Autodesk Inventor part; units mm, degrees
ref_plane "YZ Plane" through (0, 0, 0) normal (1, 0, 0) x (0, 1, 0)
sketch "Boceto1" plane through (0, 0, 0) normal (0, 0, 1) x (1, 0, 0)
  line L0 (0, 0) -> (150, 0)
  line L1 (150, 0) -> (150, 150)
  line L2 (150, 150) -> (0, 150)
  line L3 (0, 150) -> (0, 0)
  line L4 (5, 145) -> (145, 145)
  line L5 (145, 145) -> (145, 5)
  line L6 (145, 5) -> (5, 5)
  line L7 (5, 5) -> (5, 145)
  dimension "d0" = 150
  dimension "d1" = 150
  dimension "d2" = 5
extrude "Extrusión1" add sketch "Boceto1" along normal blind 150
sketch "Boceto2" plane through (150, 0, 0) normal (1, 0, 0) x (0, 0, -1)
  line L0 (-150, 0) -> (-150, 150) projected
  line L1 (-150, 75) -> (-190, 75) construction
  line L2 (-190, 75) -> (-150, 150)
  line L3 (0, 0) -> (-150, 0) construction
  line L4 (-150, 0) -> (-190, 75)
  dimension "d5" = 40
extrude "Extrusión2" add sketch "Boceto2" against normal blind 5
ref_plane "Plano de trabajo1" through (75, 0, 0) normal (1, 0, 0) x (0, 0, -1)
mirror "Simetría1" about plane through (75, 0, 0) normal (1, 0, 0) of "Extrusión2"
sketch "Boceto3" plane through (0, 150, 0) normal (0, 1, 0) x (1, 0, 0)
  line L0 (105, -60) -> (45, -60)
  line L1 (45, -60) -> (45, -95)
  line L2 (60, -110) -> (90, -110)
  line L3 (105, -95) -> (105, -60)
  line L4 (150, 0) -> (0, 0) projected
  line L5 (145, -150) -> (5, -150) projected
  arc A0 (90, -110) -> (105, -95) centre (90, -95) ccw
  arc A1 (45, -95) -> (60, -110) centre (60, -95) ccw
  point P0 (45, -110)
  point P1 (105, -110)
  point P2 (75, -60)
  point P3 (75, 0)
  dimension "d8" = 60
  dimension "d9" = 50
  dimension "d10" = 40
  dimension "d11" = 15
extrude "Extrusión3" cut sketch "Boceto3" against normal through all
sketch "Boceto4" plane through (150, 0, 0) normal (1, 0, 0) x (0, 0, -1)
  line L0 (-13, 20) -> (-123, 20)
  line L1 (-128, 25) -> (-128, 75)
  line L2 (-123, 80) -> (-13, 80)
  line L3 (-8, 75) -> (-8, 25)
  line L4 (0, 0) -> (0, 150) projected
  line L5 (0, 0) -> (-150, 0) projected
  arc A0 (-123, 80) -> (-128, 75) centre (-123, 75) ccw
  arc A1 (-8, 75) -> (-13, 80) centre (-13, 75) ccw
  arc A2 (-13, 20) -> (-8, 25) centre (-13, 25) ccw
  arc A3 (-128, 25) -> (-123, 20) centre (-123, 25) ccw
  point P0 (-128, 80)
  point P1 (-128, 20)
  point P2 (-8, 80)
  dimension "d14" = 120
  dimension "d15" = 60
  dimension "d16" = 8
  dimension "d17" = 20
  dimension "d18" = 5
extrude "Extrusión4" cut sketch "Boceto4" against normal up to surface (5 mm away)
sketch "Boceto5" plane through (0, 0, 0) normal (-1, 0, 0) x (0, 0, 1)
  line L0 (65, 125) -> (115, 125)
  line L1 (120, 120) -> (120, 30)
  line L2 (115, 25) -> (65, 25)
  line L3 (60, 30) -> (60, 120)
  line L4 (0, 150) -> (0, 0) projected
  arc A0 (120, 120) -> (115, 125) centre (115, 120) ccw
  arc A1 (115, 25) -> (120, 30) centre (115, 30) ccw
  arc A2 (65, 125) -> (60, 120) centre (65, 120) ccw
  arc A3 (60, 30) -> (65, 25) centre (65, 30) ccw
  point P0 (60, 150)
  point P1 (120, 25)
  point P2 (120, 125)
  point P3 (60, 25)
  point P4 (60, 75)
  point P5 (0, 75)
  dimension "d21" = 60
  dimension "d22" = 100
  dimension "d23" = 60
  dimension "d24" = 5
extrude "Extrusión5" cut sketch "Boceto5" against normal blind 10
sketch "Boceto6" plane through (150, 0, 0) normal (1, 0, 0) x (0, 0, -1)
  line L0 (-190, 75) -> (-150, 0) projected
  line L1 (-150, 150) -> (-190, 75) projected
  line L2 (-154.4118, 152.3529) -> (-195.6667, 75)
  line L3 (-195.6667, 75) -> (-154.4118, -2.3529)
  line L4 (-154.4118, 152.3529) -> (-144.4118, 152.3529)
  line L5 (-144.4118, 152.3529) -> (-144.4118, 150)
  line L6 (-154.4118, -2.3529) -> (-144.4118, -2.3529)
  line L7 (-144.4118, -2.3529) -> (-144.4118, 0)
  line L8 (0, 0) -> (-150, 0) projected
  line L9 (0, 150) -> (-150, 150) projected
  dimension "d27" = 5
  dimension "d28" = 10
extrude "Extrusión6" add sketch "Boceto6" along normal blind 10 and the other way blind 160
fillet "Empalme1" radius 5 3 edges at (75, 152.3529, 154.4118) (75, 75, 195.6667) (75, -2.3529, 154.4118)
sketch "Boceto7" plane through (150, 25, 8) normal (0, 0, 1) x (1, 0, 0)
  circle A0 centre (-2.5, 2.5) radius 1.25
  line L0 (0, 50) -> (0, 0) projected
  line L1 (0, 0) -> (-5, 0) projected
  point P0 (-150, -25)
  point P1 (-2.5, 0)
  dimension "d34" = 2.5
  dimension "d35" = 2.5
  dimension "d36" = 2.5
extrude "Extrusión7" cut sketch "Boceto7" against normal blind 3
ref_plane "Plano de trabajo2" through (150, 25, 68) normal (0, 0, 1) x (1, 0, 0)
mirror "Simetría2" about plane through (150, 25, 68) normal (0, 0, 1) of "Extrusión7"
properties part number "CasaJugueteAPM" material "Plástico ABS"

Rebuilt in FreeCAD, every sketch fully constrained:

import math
import FreeCAD as App
import Part
import Sketcher

V = App.Vector


def edges_at(feature, points):
    """Names of the edges that pass closest to the given points."""
    edges = feature.Shape.Edges
    near = lambda p: min(range(len(edges)), key=lambda i: edges[i].distToShape(Part.Vertex(*p))[0])
    return sorted({f"Edge{near(p) + 1}" for p in points})


def add_polygon(sketch, points):
    """Adds a closed chain of lines whose ends are joined by coincident constraints."""
    first, n = sketch.GeometryCount, len(points)
    for a, b in zip(points, points[1:] + points[:1]):
        sketch.addGeometry(Part.LineSegment(App.Vector(*a, 0), App.Vector(*b, 0)), False)
    for i in range(n):
        sketch.addConstraint(Sketcher.Constraint("Coincident", first + i, 2, first + (i + 1) % n, 1))

doc = App.newDocument("Part")
body = doc.addObject("PartDesign::Body", "Body")

# Sketch on XY plane
sketch1 = body.newObject("Sketcher::SketchObject", "Sketch")
sketch1.AttachmentSupport = (doc.getObject("XY_Plane"), [""])
sketch1.MapMode = "FlatFace"
add_polygon(sketch1, [(0, 150), (0, 0), (150, 0), (150, 150)])  # lines 0-3
add_polygon(sketch1, [(5, 5), (5, 145), (145, 145), (145, 5)])  # lines 4-7
sketch1.addConstraint([
    Sketcher.Constraint("Vertical", 0),
    Sketcher.Constraint("Horizontal", 1),
    Sketcher.Constraint("Vertical", 2),
    Sketcher.Constraint("Horizontal", 3),
    Sketcher.Constraint("Vertical", 4),
    Sketcher.Constraint("Horizontal", 5),
    Sketcher.Constraint("Vertical", 6),
    Sketcher.Constraint("Horizontal", 7),
    Sketcher.Constraint("Coincident", 0, 2, -1, 1),
    Sketcher.Constraint("Equal", 3, 0),
    Sketcher.Constraint("Equal", 7, 4),
    Sketcher.Constraint("DistanceX", 1, 1, 1, 2, 150.0),
    Sketcher.Constraint("DistanceX", -1, 1, 4, 2, 5.0),
    Sketcher.Constraint("DistanceY", -1, 1, 6, 2, 5.0),
    Sketcher.Constraint("DistanceY", 4, 2, 3, 2, 5.0),
])
pad1 = body.newObject("PartDesign::Pad", "Pad")
pad1.Profile = sketch1
pad1.Length = 150

# Sketch on YZ plane
sketch2 = body.newObject("Sketcher::SketchObject", "Sketch001")
sketch2.AttachmentSupport = (doc.getObject("YZ_Plane"), [""])
sketch2.MapMode = "FlatFace"
sketch2.AttachmentOffset = App.Placement(V(0, 0, 150), App.Rotation())
add_polygon(sketch2, [(75, 190), (0, 150), (150, 150)])  # lines 0-2
sketch2.addConstraint([
    Sketcher.Constraint("Horizontal", 1),
    Sketcher.Constraint("PointOnObject", 0, 2, -2),
    Sketcher.Constraint("Equal", 0, 2),
    Sketcher.Constraint("DistanceY", 0, 2, 2, 2, 40.0),
    Sketcher.Constraint("DistanceX", 1, 1, 1, 2, 150.0),
    Sketcher.Constraint("DistanceY", -1, 1, 0, 2, 150.0),
])
pad2 = body.newObject("PartDesign::Pad", "Pad001")
pad2.Profile = sketch2
pad2.Length = 5
pad2.Reversed = True
doc.recompute()

datumplane = body.newObject("PartDesign::Plane", "DatumPlane")
datumplane.AttachmentSupport = (doc.getObject("YZ_Plane"), [""])
datumplane.MapMode = "FlatFace"
datumplane.AttachmentOffset = App.Placement(V(0, 0, 75), App.Rotation())
mirrored = body.newObject("PartDesign::Mirrored", "Mirrored")
mirrored.Originals = [pad2]
mirrored.MirrorPlane = (datumplane, [""])
body.Tip = mirrored

# Sketch on XZ plane
sketch3 = body.newObject("Sketcher::SketchObject", "Sketch002")
sketch3.AttachmentSupport = (doc.getObject("XZ_Plane"), [""])
sketch3.MapMode = "FlatFace"
sketch3.AttachmentOffset = App.Placement(V(0, 0, -150), App.Rotation())
sketch3.addGeometry([
    Part.LineSegment(V(105, 95, 0), V(105, 60, 0)),  # 0
    Part.LineSegment(V(105, 60, 0), V(45, 60, 0)),  # 1
    Part.LineSegment(V(45, 60, 0), V(45, 95, 0)),  # 2
    Part.ArcOfCircle(Part.Circle(V(60, 95, 0), V(0, 0, 1), 15), math.radians(90), math.radians(180)),  # 3
    Part.LineSegment(V(60, 110, 0), V(90, 110, 0)),  # 4
    Part.ArcOfCircle(Part.Circle(V(90, 95, 0), V(0, 0, 1), 15), math.radians(0), math.radians(90)),  # 5
], False)
sketch3.addConstraint([
    Sketcher.Constraint("Coincident", 0, 2, 1, 1),
    Sketcher.Constraint("Coincident", 1, 2, 2, 1),
    Sketcher.Constraint("Tangent", 2, 2, 3, 2),
    Sketcher.Constraint("Tangent", 3, 1, 4, 1),
    Sketcher.Constraint("Tangent", 4, 2, 5, 2),
    Sketcher.Constraint("Tangent", 5, 1, 0, 1),
    Sketcher.Constraint("Vertical", 0),
    Sketcher.Constraint("Horizontal", 1),
    Sketcher.Constraint("Vertical", 2),
    Sketcher.Constraint("Horizontal", 4),
    Sketcher.Constraint("Equal", 3, 5),
    Sketcher.Constraint("Radius", 3, 15.0),
    Sketcher.Constraint("DistanceX", 1, 2, 1, 1, 60.0),
    Sketcher.Constraint("DistanceX", -1, 1, 3, 3, 60.0),
    Sketcher.Constraint("DistanceY", -1, 1, 0, 2, 60.0),
    Sketcher.Constraint("DistanceY", 1, 2, 3, 1, 50.0),
])
pocket1 = body.newObject("PartDesign::Pocket", "Pocket")
pocket1.Profile = sketch3
pocket1.Type = "ThroughAll"
pocket1.Reversed = True

# Sketch on YZ plane
sketch4 = body.newObject("Sketcher::SketchObject", "Sketch003")
sketch4.AttachmentSupport = (doc.getObject("YZ_Plane"), [""])
sketch4.MapMode = "FlatFace"
sketch4.AttachmentOffset = App.Placement(V(0, 0, 150), App.Rotation())
sketch4.addGeometry([
    Part.LineSegment(V(20, 123, 0), V(20, 13, 0)),  # 0
    Part.ArcOfCircle(Part.Circle(V(25, 13, 0), V(0, 0, 1), 5), math.radians(180), math.radians(270)),  # 1
    Part.LineSegment(V(25, 8, 0), V(75, 8, 0)),  # 2
    Part.ArcOfCircle(Part.Circle(V(75, 13, 0), V(0, 0, 1), 5), math.radians(-90), math.radians(0)),  # 3
    Part.LineSegment(V(80, 13, 0), V(80, 123, 0)),  # 4
    Part.ArcOfCircle(Part.Circle(V(75, 123, 0), V(0, 0, 1), 5), math.radians(0), math.radians(90)),  # 5
    Part.LineSegment(V(75, 128, 0), V(25, 128, 0)),  # 6
    Part.ArcOfCircle(Part.Circle(V(25, 123, 0), V(0, 0, 1), 5), math.radians(90), math.radians(180)),  # 7
], False)
sketch4.addConstraint([
    Sketcher.Constraint("Tangent", 0, 2, 1, 1),
    Sketcher.Constraint("Tangent", 1, 2, 2, 1),
    Sketcher.Constraint("Tangent", 2, 2, 3, 1),
    Sketcher.Constraint("Tangent", 3, 2, 4, 1),
    Sketcher.Constraint("Tangent", 4, 2, 5, 1),
    Sketcher.Constraint("Tangent", 5, 2, 6, 1),
    Sketcher.Constraint("Tangent", 6, 2, 7, 1),
    Sketcher.Constraint("Tangent", 7, 2, 0, 1),
    Sketcher.Constraint("Vertical", 0),
    Sketcher.Constraint("Horizontal", 2),
    Sketcher.Constraint("Vertical", 4),
    Sketcher.Constraint("Horizontal", 6),
    Sketcher.Constraint("Equal", 1, 3),
    Sketcher.Constraint("Equal", 3, 5),
    Sketcher.Constraint("Equal", 5, 7),
    Sketcher.Constraint("Radius", 1, 5.0),
    Sketcher.Constraint("DistanceX", -1, 1, 0, 2, 20.0),
    Sketcher.Constraint("DistanceY", -1, 1, 1, 2, 8.0),
    Sketcher.Constraint("DistanceX", 0, 2, 3, 2, 60.0),
    Sketcher.Constraint("DistanceY", 0, 2, 0, 1, 110.0),
])
pocket2 = body.newObject("PartDesign::Pocket", "Pocket001")
pocket2.Profile = sketch4
pocket2.Length = 5

# Sketch on YZ plane
sketch5 = body.newObject("Sketcher::SketchObject", "Sketch004")
sketch5.AttachmentSupport = (doc.getObject("YZ_Plane"), [""])
sketch5.MapMode = "FlatFace"
sketch5.addGeometry([
    Part.LineSegment(V(125, 115, 0), V(125, 65, 0)),  # 0
    Part.ArcOfCircle(Part.Circle(V(120, 65, 0), V(0, 0, 1), 5), math.radians(-90), math.radians(0)),  # 1
    Part.LineSegment(V(120, 60, 0), V(30, 60, 0)),  # 2
    Part.ArcOfCircle(Part.Circle(V(30, 65, 0), V(0, 0, 1), 5), math.radians(180), math.radians(270)),  # 3
    Part.LineSegment(V(25, 65, 0), V(25, 115, 0)),  # 4
    Part.ArcOfCircle(Part.Circle(V(30, 115, 0), V(0, 0, 1), 5), math.radians(90), math.radians(180)),  # 5
    Part.LineSegment(V(30, 120, 0), V(120, 120, 0)),  # 6
    Part.ArcOfCircle(Part.Circle(V(120, 115, 0), V(0, 0, 1), 5), math.radians(0), math.radians(90)),  # 7
], False)
sketch5.addConstraint([
    Sketcher.Constraint("Tangent", 0, 2, 1, 2),
    Sketcher.Constraint("Tangent", 1, 1, 2, 1),
    Sketcher.Constraint("Tangent", 2, 2, 3, 2),
    Sketcher.Constraint("Tangent", 3, 1, 4, 1),
    Sketcher.Constraint("Tangent", 4, 2, 5, 2),
    Sketcher.Constraint("Tangent", 5, 1, 6, 1),
    Sketcher.Constraint("Tangent", 6, 2, 7, 2),
    Sketcher.Constraint("Tangent", 7, 1, 0, 1),
    Sketcher.Constraint("Vertical", 0),
    Sketcher.Constraint("Horizontal", 2),
    Sketcher.Constraint("Vertical", 4),
    Sketcher.Constraint("Horizontal", 6),
    Sketcher.Constraint("Equal", 1, 3),
    Sketcher.Constraint("Equal", 3, 5),
    Sketcher.Constraint("Equal", 5, 7),
    Sketcher.Constraint("Radius", 1, 5.0),
    Sketcher.Constraint("DistanceY", -1, 1, 1, 1, 60.0),
    Sketcher.Constraint("DistanceY", 2, 2, 5, 1, 60.0),
    Sketcher.Constraint("DistanceX", 2, 2, 2, 1, 90.0),
    Sketcher.Constraint("DistanceX", -1, 1, 1, 3, 120.0),
])
pocket3 = body.newObject("PartDesign::Pocket", "Pocket002")
pocket3.Profile = sketch5
pocket3.Length = 10
pocket3.Reversed = True

# Sketch on YZ plane
sketch6 = body.newObject("Sketcher::SketchObject", "Sketch005")
sketch6.AttachmentSupport = (doc.getObject("YZ_Plane"), [""])
sketch6.MapMode = "FlatFace"
sketch6.AttachmentOffset = App.Placement(V(0, 0, 150), App.Rotation())
add_polygon(sketch6, [(0, 150), (75, 190), (150, 150), (150, 144.4), (152.4, 144.4), (152.4, 154.4), (75, 195.7), (-2.4, 154.4), (-2.4, 144.4), (0, 144.4)])  # lines 0-9
sketch6.addConstraint([
    Sketcher.Constraint("Vertical", 2),
    Sketcher.Constraint("Horizontal", 3),
    Sketcher.Constraint("Vertical", 4),
    Sketcher.Constraint("Vertical", 7),
    Sketcher.Constraint("Horizontal", 8),
    Sketcher.Constraint("Vertical", 9),
    Sketcher.Constraint("PointOnObject", 8, 2, -2),
    Sketcher.Constraint("Parallel", 1, 5),
    Sketcher.Constraint("Parallel", 0, 6),
    Sketcher.Constraint("Horizontal", 4, 2, 6, 2),
    Sketcher.Constraint("Horizontal", 3, 2, 7, 2),
    Sketcher.Constraint("Horizontal", 1, 2, 9, 2),
    Sketcher.Constraint("Vertical", 0, 2, 5, 2),
    Sketcher.Constraint("Equal", 3, 8),
    Sketcher.Constraint("DistanceY", 4, 1, 4, 2, 10.0),
    Sketcher.Constraint("Distance", 0, 85.0),
    Sketcher.Constraint("DistanceX", -1, 1, 0, 2, 75.0),
    Sketcher.Constraint("DistanceY", -1, 1, 0, 2, 190.0),
    Sketcher.Constraint("DistanceX", 3, 1, 3, 2, 2.353),
    Sketcher.Constraint("DistanceY", 2, 2, 2, 1, 5.5882),
])
pad3 = body.newObject("PartDesign::Pad", "Pad002")
pad3.Profile = sketch6
pad3.Type = "TwoLengths"
pad3.Length = 10
pad3.Length2 = 160
doc.recompute()

fillet = body.newObject("PartDesign::Fillet", "Fillet")
fillet.Base = (pad3, edges_at(pad3, [(75, 152.353, 154.412), (75, 75, 195.667), (75, -2.353, 154.412)]))
fillet.Radius = 5

# Sketch on XY plane
sketch7 = body.newObject("Sketcher::SketchObject", "Sketch006")
sketch7.AttachmentSupport = (doc.getObject("XY_Plane"), [""])
sketch7.MapMode = "FlatFace"
sketch7.AttachmentOffset = App.Placement(V(0, 0, 8), App.Rotation())
sketch7.addGeometry(Part.Circle(V(147.5, 27.5, 0), V(0, 0, 1), 1.2), False)
sketch7.addConstraint([
    Sketcher.Constraint("Diameter", 0, 2.5),
    Sketcher.Constraint("DistanceX", -1, 1, 0, 3, 147.5),
    Sketcher.Constraint("DistanceY", -1, 1, 0, 3, 27.5),
])
pocket4 = body.newObject("PartDesign::Pocket", "Pocket003")
pocket4.Profile = sketch7
pocket4.Length = 3
doc.recompute()

datumplane2 = body.newObject("PartDesign::Plane", "DatumPlane001")
datumplane2.AttachmentSupport = (doc.getObject("XY_Plane"), [""])
datumplane2.MapMode = "FlatFace"
datumplane2.AttachmentOffset = App.Placement(V(0, 0, 68), App.Rotation())
mirrored2 = body.newObject("PartDesign::Mirrored", "Mirrored001")
mirrored2.Originals = [pocket4]
mirrored2.MirrorPlane = (datumplane2, [""])
body.Tip = mirrored2

doc.recompute()
